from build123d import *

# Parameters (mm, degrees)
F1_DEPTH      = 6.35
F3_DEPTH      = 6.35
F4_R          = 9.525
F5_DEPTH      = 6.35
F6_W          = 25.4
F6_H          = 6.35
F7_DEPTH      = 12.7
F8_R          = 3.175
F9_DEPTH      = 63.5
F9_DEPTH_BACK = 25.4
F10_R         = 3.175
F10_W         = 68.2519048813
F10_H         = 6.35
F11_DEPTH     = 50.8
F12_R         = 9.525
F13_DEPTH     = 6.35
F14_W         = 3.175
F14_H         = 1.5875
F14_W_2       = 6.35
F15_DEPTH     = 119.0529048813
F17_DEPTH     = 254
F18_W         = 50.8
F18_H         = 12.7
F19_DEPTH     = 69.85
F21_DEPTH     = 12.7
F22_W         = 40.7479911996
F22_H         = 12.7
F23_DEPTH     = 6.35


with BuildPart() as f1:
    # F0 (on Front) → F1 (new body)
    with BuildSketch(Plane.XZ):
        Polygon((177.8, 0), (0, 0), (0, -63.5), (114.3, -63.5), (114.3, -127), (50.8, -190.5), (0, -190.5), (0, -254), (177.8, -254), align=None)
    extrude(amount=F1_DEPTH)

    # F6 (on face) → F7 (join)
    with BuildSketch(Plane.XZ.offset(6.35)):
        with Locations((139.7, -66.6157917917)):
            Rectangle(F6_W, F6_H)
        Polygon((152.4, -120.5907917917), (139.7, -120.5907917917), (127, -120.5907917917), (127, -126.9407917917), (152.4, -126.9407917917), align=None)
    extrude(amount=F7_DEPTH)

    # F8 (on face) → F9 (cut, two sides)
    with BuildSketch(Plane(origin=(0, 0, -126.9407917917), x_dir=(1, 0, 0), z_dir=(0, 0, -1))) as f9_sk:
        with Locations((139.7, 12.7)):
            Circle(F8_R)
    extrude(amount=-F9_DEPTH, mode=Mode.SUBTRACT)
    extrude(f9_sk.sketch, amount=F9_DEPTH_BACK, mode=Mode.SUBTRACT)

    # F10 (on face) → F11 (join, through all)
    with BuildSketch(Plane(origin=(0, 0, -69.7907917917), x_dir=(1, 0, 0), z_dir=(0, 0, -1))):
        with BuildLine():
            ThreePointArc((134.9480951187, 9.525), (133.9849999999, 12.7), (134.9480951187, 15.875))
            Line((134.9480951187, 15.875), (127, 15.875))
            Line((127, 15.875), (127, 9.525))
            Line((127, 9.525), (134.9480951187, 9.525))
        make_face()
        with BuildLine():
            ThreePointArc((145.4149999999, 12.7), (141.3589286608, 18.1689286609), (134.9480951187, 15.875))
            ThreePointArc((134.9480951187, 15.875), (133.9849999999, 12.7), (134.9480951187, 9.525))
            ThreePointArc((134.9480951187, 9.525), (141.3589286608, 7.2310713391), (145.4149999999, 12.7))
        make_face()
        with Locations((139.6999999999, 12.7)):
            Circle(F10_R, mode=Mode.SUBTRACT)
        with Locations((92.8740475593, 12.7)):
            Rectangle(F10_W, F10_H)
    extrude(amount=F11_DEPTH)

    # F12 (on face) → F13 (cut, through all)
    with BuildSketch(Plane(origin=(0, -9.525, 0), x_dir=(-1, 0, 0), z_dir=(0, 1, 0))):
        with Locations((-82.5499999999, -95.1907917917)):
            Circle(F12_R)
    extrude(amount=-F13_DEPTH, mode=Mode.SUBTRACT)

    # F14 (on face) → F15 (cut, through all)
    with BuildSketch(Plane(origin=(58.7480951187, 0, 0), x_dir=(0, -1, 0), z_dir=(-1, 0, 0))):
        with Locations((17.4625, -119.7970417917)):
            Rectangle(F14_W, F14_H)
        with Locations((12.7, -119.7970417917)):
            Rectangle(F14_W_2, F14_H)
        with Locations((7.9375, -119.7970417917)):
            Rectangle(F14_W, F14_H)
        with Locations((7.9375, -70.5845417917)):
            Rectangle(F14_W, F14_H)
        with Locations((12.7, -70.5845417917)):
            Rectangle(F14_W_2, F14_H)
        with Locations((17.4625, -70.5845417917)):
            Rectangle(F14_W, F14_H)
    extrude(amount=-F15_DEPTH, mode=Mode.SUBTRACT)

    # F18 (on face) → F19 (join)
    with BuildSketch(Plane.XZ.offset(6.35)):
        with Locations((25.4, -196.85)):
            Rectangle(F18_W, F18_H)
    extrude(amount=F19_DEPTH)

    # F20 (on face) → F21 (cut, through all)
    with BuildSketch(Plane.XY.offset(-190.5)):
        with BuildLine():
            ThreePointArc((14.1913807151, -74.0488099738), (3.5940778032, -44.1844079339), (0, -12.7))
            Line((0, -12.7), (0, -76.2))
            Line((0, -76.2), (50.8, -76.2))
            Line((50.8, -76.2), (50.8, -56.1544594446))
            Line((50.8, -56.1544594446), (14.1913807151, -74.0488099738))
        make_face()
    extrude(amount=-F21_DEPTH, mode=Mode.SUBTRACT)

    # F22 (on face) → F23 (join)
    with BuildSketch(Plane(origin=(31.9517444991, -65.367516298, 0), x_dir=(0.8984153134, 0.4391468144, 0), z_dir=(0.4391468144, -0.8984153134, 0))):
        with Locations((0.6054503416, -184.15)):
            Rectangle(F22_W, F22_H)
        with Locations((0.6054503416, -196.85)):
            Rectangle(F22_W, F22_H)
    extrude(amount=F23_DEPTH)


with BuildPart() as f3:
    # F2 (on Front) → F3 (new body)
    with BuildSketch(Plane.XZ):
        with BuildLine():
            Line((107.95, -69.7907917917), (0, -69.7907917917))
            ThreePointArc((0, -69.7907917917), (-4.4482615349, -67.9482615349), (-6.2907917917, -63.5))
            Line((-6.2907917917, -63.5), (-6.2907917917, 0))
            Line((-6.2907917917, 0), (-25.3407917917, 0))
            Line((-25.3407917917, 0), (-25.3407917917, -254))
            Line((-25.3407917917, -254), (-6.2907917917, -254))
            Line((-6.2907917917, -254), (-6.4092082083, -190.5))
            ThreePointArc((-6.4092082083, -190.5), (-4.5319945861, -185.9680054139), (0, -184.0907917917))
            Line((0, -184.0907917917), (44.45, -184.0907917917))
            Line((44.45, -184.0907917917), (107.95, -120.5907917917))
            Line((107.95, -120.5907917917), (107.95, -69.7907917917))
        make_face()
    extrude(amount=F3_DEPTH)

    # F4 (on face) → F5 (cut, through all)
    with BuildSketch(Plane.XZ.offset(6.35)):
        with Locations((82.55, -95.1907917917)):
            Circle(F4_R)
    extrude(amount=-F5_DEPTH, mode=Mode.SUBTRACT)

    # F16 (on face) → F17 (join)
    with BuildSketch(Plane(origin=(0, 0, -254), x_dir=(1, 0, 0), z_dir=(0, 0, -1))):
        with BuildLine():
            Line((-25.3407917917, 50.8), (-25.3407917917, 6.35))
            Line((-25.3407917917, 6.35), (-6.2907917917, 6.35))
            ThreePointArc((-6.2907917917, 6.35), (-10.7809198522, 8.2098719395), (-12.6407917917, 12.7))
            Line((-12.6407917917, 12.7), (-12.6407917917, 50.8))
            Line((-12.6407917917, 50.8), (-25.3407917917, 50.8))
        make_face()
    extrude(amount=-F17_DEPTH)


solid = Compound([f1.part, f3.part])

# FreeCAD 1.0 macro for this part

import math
import FreeCAD as App
import Part
import Sketcher
from FreeCAD import Vector
Q = App.Units.Quantity

doc = App.newDocument("Part")
body = doc.addObject("PartDesign::Body", "Body")
body.AllowCompound = True

sketch1 = doc.addObject("Sketcher::SketchObject", "Sketch")
body.addObject(sketch1)
sketch1.AttachmentSupport = (doc.XZ_Plane, [""])
sketch1.MapMode = "FlatFace"
sketch1.addGeometry(Part.LineSegment(Vector(177.8, 0, 0), Vector(0, 0, 0)), False)
sketch1.addGeometry(Part.LineSegment(Vector(0, 0, 0), Vector(0, -63.5, 0)), False)
sketch1.addGeometry(Part.LineSegment(Vector(0, -63.5, 0), Vector(114.3, -63.5, 0)), False)
sketch1.addGeometry(Part.LineSegment(Vector(114.3, -63.5, 0), Vector(114.3, -127, 0)), False)
sketch1.addGeometry(Part.LineSegment(Vector(114.3, -127, 0), Vector(50.8, -190.5, 0)), False)
sketch1.addGeometry(Part.LineSegment(Vector(50.8, -190.5, 0), Vector(0, -190.5, 0)), False)
sketch1.addGeometry(Part.LineSegment(Vector(0, -190.5, 0), Vector(0, -254, 0)), False)
sketch1.addGeometry(Part.LineSegment(Vector(0, -254, 0), Vector(177.8, -254, 0)), False)
sketch1.addGeometry(Part.LineSegment(Vector(177.8, -254, 0), Vector(177.8, 0, 0)), False)
sketch1.addConstraint(Sketcher.Constraint("Coincident", 0, 2, 1, 1))
sketch1.addConstraint(Sketcher.Constraint("Coincident", 1, 2, 2, 1))
sketch1.addConstraint(Sketcher.Constraint("Coincident", 2, 2, 3, 1))
sketch1.addConstraint(Sketcher.Constraint("Coincident", 3, 2, 4, 1))
sketch1.addConstraint(Sketcher.Constraint("Coincident", 4, 2, 5, 1))
sketch1.addConstraint(Sketcher.Constraint("Coincident", 5, 2, 6, 1))
sketch1.addConstraint(Sketcher.Constraint("Coincident", 6, 2, 7, 1))
sketch1.addConstraint(Sketcher.Constraint("Coincident", 7, 2, 8, 1))
sketch1.addConstraint(Sketcher.Constraint("Coincident", 8, 2, 0, 1))
sketch1.addConstraint(Sketcher.Constraint("Horizontal", 0))
sketch1.addConstraint(Sketcher.Constraint("Vertical", 1))
sketch1.addConstraint(Sketcher.Constraint("Horizontal", 2))
sketch1.addConstraint(Sketcher.Constraint("Vertical", 3))
sketch1.addConstraint(Sketcher.Constraint("Horizontal", 5))
sketch1.addConstraint(Sketcher.Constraint("Vertical", 6))
sketch1.addConstraint(Sketcher.Constraint("Horizontal", 7))
sketch1.addConstraint(Sketcher.Constraint("Vertical", 8))
sketch1.addConstraint(Sketcher.Constraint("Coincident", 0, 2, -1, 1))
sketch1.addConstraint(Sketcher.Constraint("PointOnObject", 5, 2, -2))
sketch1.addConstraint(Sketcher.Constraint("Equal", 1, 3))
sketch1.addConstraint(Sketcher.Constraint("Equal", 3, 6))
sketch1.addConstraint(Sketcher.Constraint("DistanceX", 0, 2, 0, 1, Q("7 in")))
sketch1.addConstraint(Sketcher.Constraint("DistanceX", 5, 2, 5, 1, Q("2 in")))
sketch1.addConstraint(Sketcher.Constraint("DistanceY", 8, 1, 8, 2, Q("10 in")))
sketch1.addConstraint(Sketcher.Constraint("DistanceX", 2, 1, 2, 2, Q("4.5 in")))
sketch1.addConstraint(Sketcher.Constraint("DistanceY", 1, 2, 1, 1, Q("2.5 in")))
pad1 = doc.addObject("PartDesign::Pad", "Pad")
body.addObject(pad1)
pad1.Profile = sketch1
pad1.Length = Q("0.25 in")

sketch2 = doc.addObject("Sketcher::SketchObject", "Sketch001")
body.addObject(sketch2)
sketch2.AttachmentSupport = (doc.XZ_Plane, [""])
sketch2.MapMode = "FlatFace"
sketch2.AttachmentOffset = App.Placement(Vector(0, 0, 0.25 * 25.4), App.Rotation())
sketch2.addGeometry(Part.LineSegment(Vector(127, -63.440792, 0), Vector(127, -69.790792, 0)), False)
sketch2.addGeometry(Part.LineSegment(Vector(127, -69.790792, 0), Vector(152.4, -69.790792, 0)), False)
sketch2.addGeometry(Part.LineSegment(Vector(152.4, -69.790792, 0), Vector(152.4, -63.440792, 0)), False)
sketch2.addGeometry(Part.LineSegment(Vector(152.4, -63.440792, 0), Vector(127, -63.440792, 0)), False)
sketch2.addGeometry(Part.LineSegment(Vector(152.4, -120.590792, 0), Vector(127, -120.590792, 0)), False)
sketch2.addGeometry(Part.LineSegment(Vector(127, -120.590792, 0), Vector(127, -126.940792, 0)), False)
sketch2.addGeometry(Part.LineSegment(Vector(127, -126.940792, 0), Vector(152.4, -126.940792, 0)), False)
sketch2.addGeometry(Part.LineSegment(Vector(152.4, -126.940792, 0), Vector(152.4, -120.590792, 0)), False)
sketch2.addConstraint(Sketcher.Constraint("Coincident", 0, 2, 1, 1))
sketch2.addConstraint(Sketcher.Constraint("Coincident", 1, 2, 2, 1))
sketch2.addConstraint(Sketcher.Constraint("Coincident", 2, 2, 3, 1))
sketch2.addConstraint(Sketcher.Constraint("Coincident", 3, 2, 0, 1))
sketch2.addConstraint(Sketcher.Constraint("Coincident", 4, 2, 5, 1))
sketch2.addConstraint(Sketcher.Constraint("Coincident", 5, 2, 6, 1))
sketch2.addConstraint(Sketcher.Constraint("Coincident", 6, 2, 7, 1))
sketch2.addConstraint(Sketcher.Constraint("Coincident", 7, 2, 4, 1))
sketch2.addConstraint(Sketcher.Constraint("Vertical", 0))
sketch2.addConstraint(Sketcher.Constraint("Horizontal", 1))
sketch2.addConstraint(Sketcher.Constraint("Vertical", 2))
sketch2.addConstraint(Sketcher.Constraint("Horizontal", 3))
sketch2.addConstraint(Sketcher.Constraint("Horizontal", 4))
sketch2.addConstraint(Sketcher.Constraint("Vertical", 5))
sketch2.addConstraint(Sketcher.Constraint("Horizontal", 6))
sketch2.addConstraint(Sketcher.Constraint("Vertical", 7))
sketch2.addConstraint(Sketcher.Constraint("Vertical", 3, 2, 4, 2))
sketch2.addConstraint(Sketcher.Constraint("Vertical", 2, 2, 6, 2))
sketch2.addConstraint(Sketcher.Constraint("Equal", 2, 5))
sketch2.addConstraint(Sketcher.Constraint("DistanceX", 1, 1, 1, 2, Q("1 in")))
sketch2.addConstraint(Sketcher.Constraint("DistanceX", -1, 1, 0, 2, Q("5 in")))
sketch2.addConstraint(Sketcher.Constraint("DistanceY", 4, 2, 0, 2, Q("2 in")))
sketch2.addConstraint(Sketcher.Constraint("DistanceY", 0, 2, 0, 1, Q("0.25 in")))
sketch2.addConstraint(Sketcher.Constraint("DistanceY", 0, 2, -1, 1, Q("69.790792 mm")))
pad2 = doc.addObject("PartDesign::Pad", "Pad001")
body.addObject(pad2)
pad2.Profile = sketch2
pad2.Length = Q("0.5 in")

sketch3 = doc.addObject("Sketcher::SketchObject", "Sketch002")
body.addObject(sketch3)
sketch3.AttachmentSupport = (doc.XY_Plane, [""])
sketch3.MapMode = "FlatFace"
sketch3.AttachmentOffset = App.Placement(Vector(0, 0, -126.940792), App.Rotation())
sketch3.addGeometry(Part.Circle(Vector(139.7, -12.7, 0), Vector(0, 0, 1), 3.175), False)
sketch3.addConstraint(Sketcher.Constraint("Diameter", 0, Q("0.25 in")))
sketch3.addConstraint(Sketcher.Constraint("DistanceX", -1, 1, 0, 3, Q("5.5 in")))
sketch3.addConstraint(Sketcher.Constraint("DistanceY", 0, 3, -1, 1, Q("0.5 in")))
pocket1 = doc.addObject("PartDesign::Pocket", "Pocket")
body.addObject(pocket1)
pocket1.Profile = sketch3
pocket1.Type = "ThroughAll"
pocket1.Midplane = True

sketch4 = doc.addObject("Sketcher::SketchObject", "Sketch003")
body.addObject(sketch4)
sketch4.AttachmentSupport = (doc.XY_Plane, [""])
sketch4.MapMode = "FlatFace"
sketch4.AttachmentOffset = App.Placement(Vector(0, 0, -69.790792), App.Rotation())
sketch4.addGeometry(Part.LineSegment(Vector(134.948095, -15.875, 0), Vector(58.748095, -15.875, 0)), False)
sketch4.addGeometry(Part.LineSegment(Vector(58.748095, -15.875, 0), Vector(58.748095, -9.525, 0)), False)
sketch4.addGeometry(Part.LineSegment(Vector(58.748095, -9.525, 0), Vector(134.948095, -9.525, 0)), False)
sketch4.addGeometry(Part.ArcOfCircle(Part.Circle(Vector(139.7, -12.7, 0), Vector(0, 0, 1), 5.715), math.radians(-146.251011), math.radians(146.251011)), False)
sketch4.addGeometry(Part.Circle(Vector(139.7, -12.7, 0), Vector(0, 0, 1), 3.175), False)
sketch4.addConstraint(Sketcher.Constraint("Coincident", 0, 2, 1, 1))
sketch4.addConstraint(Sketcher.Constraint("Coincident", 1, 2, 2, 1))
sketch4.addConstraint(Sketcher.Constraint("Coincident", 2, 2, 3, 2))
sketch4.addConstraint(Sketcher.Constraint("Coincident", 3, 1, 0, 1))
sketch4.addConstraint(Sketcher.Constraint("Horizontal", 0))
sketch4.addConstraint(Sketcher.Constraint("Vertical", 1))
sketch4.addConstraint(Sketcher.Constraint("Horizontal", 2))
sketch4.addConstraint(Sketcher.Constraint("Coincident", 4, 3, 3, 3))
sketch4.addConstraint(Sketcher.Constraint("Vertical", 2, 2, 3, 1))
sketch4.addConstraint(Sketcher.Constraint("Diameter", 4, Q("0.25 in")))
sketch4.addConstraint(Sketcher.Constraint("DistanceX", 0, 2, 0, 1, Q("3 in")))
sketch4.addConstraint(Sketcher.Constraint("Radius", 3, Q("0.225 in")))
sketch4.addConstraint(Sketcher.Constraint("DistanceY", 1, 1, 1, 2, Q("0.25 in")))
sketch4.addConstraint(Sketcher.Constraint("DistanceX", -1, 1, 3, 3, Q("5.5 in")))
sketch4.addConstraint(Sketcher.Constraint("DistanceY", 3, 3, -1, 1, Q("0.5 in")))
pad3 = doc.addObject("PartDesign::Pad", "Pad002")
body.addObject(pad3)
pad3.Profile = sketch4
pad3.Length = Q("2 in")
pad3.Reversed = True

sketch5 = doc.addObject("Sketcher::SketchObject", "Sketch004")
body.addObject(sketch5)
sketch5.AttachmentSupport = (doc.XZ_Plane, [""])
sketch5.MapMode = "FlatFace"
sketch5.AttachmentOffset = App.Placement(Vector(0, 0, 0.375 * 25.4), App.Rotation())
sketch5.addGeometry(Part.Circle(Vector(82.55, -95.190792, 0), Vector(0, 0, 1), 9.525), False)
sketch5.addConstraint(Sketcher.Constraint("Diameter", 0, Q("0.75 in")))
sketch5.addConstraint(Sketcher.Constraint("DistanceX", -1, 1, 0, 3, Q("3.25 in")))
sketch5.addConstraint(Sketcher.Constraint("DistanceY", 0, 3, -1, 1, Q("95.190792 mm")))
pocket2 = doc.addObject("PartDesign::Pocket", "Pocket001")
body.addObject(pocket2)
pocket2.Profile = sketch5
pocket2.Type = "ThroughAll"
pocket2.Reversed = True

sketch6 = doc.addObject("Sketcher::SketchObject", "Sketch005")
body.addObject(sketch6)
sketch6.AttachmentSupport = (doc.YZ_Plane, [""])
sketch6.MapMode = "FlatFace"
sketch6.AttachmentOffset = App.Placement(Vector(0, 0, 58.748095), App.Rotation())
sketch6.addGeometry(Part.LineSegment(Vector(-19.05, -120.590792, 0), Vector(-19.05, -119.003292, 0)), False)
sketch6.addGeometry(Part.LineSegment(Vector(-19.05, -119.003292, 0), Vector(-6.35, -119.003292, 0)), False)
sketch6.addGeometry(Part.LineSegment(Vector(-6.35, -119.003292, 0), Vector(-6.35, -120.590792, 0)), False)
sketch6.addGeometry(Part.LineSegment(Vector(-6.35, -120.590792, 0), Vector(-19.05, -120.590792, 0)), False)
sketch6.addGeometry(Part.LineSegment(Vector(-6.35, -69.790792, 0), Vector(-6.35, -71.378292, 0)), False)
sketch6.addGeometry(Part.LineSegment(Vector(-6.35, -71.378292, 0), Vector(-19.05, -71.378292, 0)), False)
sketch6.addGeometry(Part.LineSegment(Vector(-19.05, -71.378292, 0), Vector(-19.05, -69.790792, 0)), False)
sketch6.addGeometry(Part.LineSegment(Vector(-19.05, -69.790792, 0), Vector(-6.35, -69.790792, 0)), False)
sketch6.addConstraint(Sketcher.Constraint("Coincident", 0, 2, 1, 1))
sketch6.addConstraint(Sketcher.Constraint("Coincident", 1, 2, 2, 1))
sketch6.addConstraint(Sketcher.Constraint("Coincident", 2, 2, 3, 1))
sketch6.addConstraint(Sketcher.Constraint("Coincident", 3, 2, 0, 1))
sketch6.addConstraint(Sketcher.Constraint("Coincident", 4, 2, 5, 1))
sketch6.addConstraint(Sketcher.Constraint("Coincident", 5, 2, 6, 1))
sketch6.addConstraint(Sketcher.Constraint("Coincident", 6, 2, 7, 1))
sketch6.addConstraint(Sketcher.Constraint("Coincident", 7, 2, 4, 1))
sketch6.addConstraint(Sketcher.Constraint("Vertical", 0))
sketch6.addConstraint(Sketcher.Constraint("Horizontal", 1))
sketch6.addConstraint(Sketcher.Constraint("Vertical", 2))
sketch6.addConstraint(Sketcher.Constraint("Horizontal", 3))
sketch6.addConstraint(Sketcher.Constraint("Vertical", 4))
sketch6.addConstraint(Sketcher.Constraint("Horizontal", 5))
sketch6.addConstraint(Sketcher.Constraint("Vertical", 6))
sketch6.addConstraint(Sketcher.Constraint("Horizontal", 7))
sketch6.addConstraint(Sketcher.Constraint("Vertical", 2, 2, 4, 2))
sketch6.addConstraint(Sketcher.Constraint("Vertical", 3, 2, 5, 2))
sketch6.addConstraint(Sketcher.Constraint("Equal", 2, 4))
sketch6.addConstraint(Sketcher.Constraint("DistanceX", 1, 1, 1, 2, Q("0.5 in")))
sketch6.addConstraint(Sketcher.Constraint("DistanceY", 3, 2, 6, 2, Q("2 in")))
sketch6.addConstraint(Sketcher.Constraint("DistanceY", 0, 1, 0, 2, Q("0.0625 in")))
sketch6.addConstraint(Sketcher.Constraint("DistanceX", 0, 2, -1, 1, Q("0.75 in")))
sketch6.addConstraint(Sketcher.Constraint("DistanceY", 0, 2, -1, 1, Q("119.003292 mm")))
pocket3 = doc.addObject("PartDesign::Pocket", "Pocket002")
body.addObject(pocket3)
pocket3.Profile = sketch6
pocket3.Type = "ThroughAll"
pocket3.Reversed = True

sketch7 = doc.addObject("Sketcher::SketchObject", "Sketch006")
body.addObject(sketch7)
sketch7.AttachmentSupport = (doc.XZ_Plane, [""])
sketch7.MapMode = "FlatFace"
sketch7.AttachmentOffset = App.Placement(Vector(0, 0, 0.25 * 25.4), App.Rotation())
sketch7.addGeometry(Part.LineSegment(Vector(0, -190.5, 0), Vector(0, -203.2, 0)), False)
sketch7.addGeometry(Part.LineSegment(Vector(0, -203.2, 0), Vector(50.8, -203.2, 0)), False)
sketch7.addGeometry(Part.LineSegment(Vector(50.8, -203.2, 0), Vector(50.8, -190.5, 0)), False)
sketch7.addGeometry(Part.LineSegment(Vector(50.8, -190.5, 0), Vector(0, -190.5, 0)), False)
sketch7.addConstraint(Sketcher.Constraint("Coincident", 0, 2, 1, 1))
sketch7.addConstraint(Sketcher.Constraint("Coincident", 1, 2, 2, 1))
sketch7.addConstraint(Sketcher.Constraint("Coincident", 2, 2, 3, 1))
sketch7.addConstraint(Sketcher.Constraint("Coincident", 3, 2, 0, 1))
sketch7.addConstraint(Sketcher.Constraint("Vertical", 0))
sketch7.addConstraint(Sketcher.Constraint("Horizontal", 1))
sketch7.addConstraint(Sketcher.Constraint("Vertical", 2))
sketch7.addConstraint(Sketcher.Constraint("Horizontal", 3))
sketch7.addConstraint(Sketcher.Constraint("PointOnObject", 0, 2, -2))
sketch7.addConstraint(Sketcher.Constraint("DistanceX", 1, 1, 1, 2, Q("2 in")))
sketch7.addConstraint(Sketcher.Constraint("DistanceY", 0, 2, 0, 1, Q("0.5 in")))
sketch7.addConstraint(Sketcher.Constraint("DistanceY", 0, 2, -1, 1, Q("8 in")))
pad4 = doc.addObject("PartDesign::Pad", "Pad003")
body.addObject(pad4)
pad4.Profile = sketch7
pad4.Length = Q("2.75 in")

sketch8 = doc.addObject("Sketcher::SketchObject", "Sketch007")
body.addObject(sketch8)
sketch8.AttachmentSupport = (doc.XY_Plane, [""])
sketch8.MapMode = "FlatFace"
sketch8.AttachmentOffset = App.Placement(Vector(0, 0, -7.5 * 25.4), App.Rotation())
sketch8.addGeometry(Part.ArcOfCircle(Part.Circle(Vector(139.7, -12.7, 0), Vector(0, 0, 1), 139.7), math.radians(180), math.radians(206.049457)), False)
sketch8.addGeometry(Part.LineSegment(Vector(0, -12.7, 0), Vector(0, -76.2, 0)), False)
sketch8.addGeometry(Part.LineSegment(Vector(0, -76.2, 0), Vector(50.8, -76.2, 0)), False)
sketch8.addGeometry(Part.LineSegment(Vector(50.8, -76.2, 0), Vector(50.8, -56.154459, 0)), False)
sketch8.addGeometry(Part.LineSegment(Vector(50.8, -56.154459, 0), Vector(14.191381, -74.04881, 0)), False)
sketch8.addConstraint(Sketcher.Constraint("Tangent", 0, 1, 1, 1))
sketch8.addConstraint(Sketcher.Constraint("Coincident", 1, 2, 2, 1))
sketch8.addConstraint(Sketcher.Constraint("Coincident", 2, 2, 3, 1))
sketch8.addConstraint(Sketcher.Constraint("Coincident", 3, 2, 4, 1))
sketch8.addConstraint(Sketcher.Constraint("Coincident", 4, 2, 0, 2))
sketch8.addConstraint(Sketcher.Constraint("Vertical", 1))
sketch8.addConstraint(Sketcher.Constraint("Horizontal", 2))
sketch8.addConstraint(Sketcher.Constraint("Vertical", 3))
sketch8.addConstraint(Sketcher.Constraint("PointOnObject", 0, 1, -2))
sketch8.addConstraint(Sketcher.Constraint("Radius", 0, Q("5.5 in")))
sketch8.addConstraint(Sketcher.Constraint("DistanceX", 2, 1, 2, 2, Q("2 in")))
sketch8.addConstraint(Sketcher.Constraint("DistanceY", 1, 2, 1, 1, Q("2.5 in")))
sketch8.addConstraint(Sketcher.Constraint("DistanceY", 1, 2, -1, 1, Q("3 in")))
sketch8.addConstraint(Sketcher.Constraint("DistanceY", 3, 1, 3, 2, Q("20.045541 mm")))
sketch8.addConstraint(Sketcher.Constraint("DistanceX", -1, 1, 4, 2, Q("14.191381 mm")))
pocket4 = doc.addObject("PartDesign::Pocket", "Pocket003")
body.addObject(pocket4)
pocket4.Profile = sketch8
pocket4.Type = "ThroughAll"

sketch9 = doc.addObject("Sketcher::SketchObject", "Sketch008")
body.addObject(sketch9)
sketch9.Placement = App.Placement(Vector(31.951744, -65.367516, 0), App.Rotation(Vector(0.898415313, 0.439146814, 0), Vector(0, 0, 0.999999999), Vector(0.439146814, -0.898415313, 0), "ZXY"))
sketch9.addGeometry(Part.LineSegment(Vector(-19.768545, -177.8, 0), Vector(-19.768545, -203.2, 0)), False)
sketch9.addGeometry(Part.LineSegment(Vector(-19.768545, -203.2, 0), Vector(20.979446, -203.2, 0)), False)
sketch9.addGeometry(Part.LineSegment(Vector(20.979446, -203.2, 0), Vector(20.979446, -177.8, 0)), False)
sketch9.addGeometry(Part.LineSegment(Vector(20.979446, -177.8, 0), Vector(-19.768545, -177.8, 0)), False)
sketch9.addConstraint(Sketcher.Constraint("Coincident", 0, 2, 1, 1))
sketch9.addConstraint(Sketcher.Constraint("Coincident", 1, 2, 2, 1))
sketch9.addConstraint(Sketcher.Constraint("Coincident", 2, 2, 3, 1))
sketch9.addConstraint(Sketcher.Constraint("Coincident", 3, 2, 0, 1))
sketch9.addConstraint(Sketcher.Constraint("Vertical", 0))
sketch9.addConstraint(Sketcher.Constraint("Horizontal", 1))
sketch9.addConstraint(Sketcher.Constraint("Vertical", 2))
sketch9.addConstraint(Sketcher.Constraint("Horizontal", 3))
sketch9.addConstraint(Sketcher.Constraint("DistanceY", 0, 2, 0, 1, Q("1 in")))
sketch9.addConstraint(Sketcher.Constraint("DistanceY", 0, 2, -1, 1, Q("8 in")))
sketch9.addConstraint(Sketcher.Constraint("DistanceX", 1, 1, 1, 2, Q("40.747991 mm")))
sketch9.addConstraint(Sketcher.Constraint("DistanceX", 0, 2, -1, 1, Q("19.768545 mm")))
pad5 = doc.addObject("PartDesign::Pad", "Pad004")
body.addObject(pad5)
pad5.Profile = sketch9
pad5.Length = Q("0.25 in")
body2 = doc.addObject("PartDesign::Body", "Body001")

sketch10 = doc.addObject("Sketcher::SketchObject", "Sketch009")
body2.addObject(sketch10)
sketch10.AttachmentSupport = (doc.getObject("XZ_Plane001"), [""])
sketch10.MapMode = "FlatFace"
sketch10.addGeometry(Part.LineSegment(Vector(107.95, -69.790792, 0), Vector(0, -69.790792, 0)), False)
sketch10.addGeometry(Part.ArcOfCircle(Part.Circle(Vector(0, -63.5, 0), Vector(0, 0, 1), 6.290792), math.radians(180), math.radians(270)), False)
sketch10.addGeometry(Part.LineSegment(Vector(-6.290792, -63.5, 0), Vector(-6.290792, 0, 0)), False)
sketch10.addGeometry(Part.LineSegment(Vector(-6.290792, 0, 0), Vector(-25.340792, 0, 0)), False)
sketch10.addGeometry(Part.LineSegment(Vector(-25.340792, 0, 0), Vector(-25.340792, -254, 0)), False)
sketch10.addGeometry(Part.LineSegment(Vector(-25.340792, -254, 0), Vector(-6.290792, -254, 0)), False)
sketch10.addGeometry(Part.LineSegment(Vector(-6.290792, -254, 0), Vector(-6.409208, -190.5, 0)), False)
sketch10.addGeometry(Part.ArcOfCircle(Part.Circle(Vector(0, -190.5, 0), Vector(0, 0, 1), 6.409208), math.radians(90), math.radians(180)), False)
sketch10.addGeometry(Part.LineSegment(Vector(0, -184.090792, 0), Vector(44.45, -184.090792, 0)), False)
sketch10.addGeometry(Part.LineSegment(Vector(44.45, -184.090792, 0), Vector(107.95, -120.590792, 0)), False)
sketch10.addGeometry(Part.LineSegment(Vector(107.95, -120.590792, 0), Vector(107.95, -69.790792, 0)), False)
sketch10.addConstraint(Sketcher.Constraint("Tangent", 0, 2, 1, 2))
sketch10.addConstraint(Sketcher.Constraint("Tangent", 1, 1, 2, 1))
sketch10.addConstraint(Sketcher.Constraint("Coincident", 2, 2, 3, 1))
sketch10.addConstraint(Sketcher.Constraint("Coincident", 3, 2, 4, 1))
sketch10.addConstraint(Sketcher.Constraint("Coincident", 4, 2, 5, 1))
sketch10.addConstraint(Sketcher.Constraint("Coincident", 5, 2, 6, 1))
sketch10.addConstraint(Sketcher.Constraint("Coincident", 6, 2, 7, 2))
sketch10.addConstraint(Sketcher.Constraint("Tangent", 7, 1, 8, 1))
sketch10.addConstraint(Sketcher.Constraint("Coincident", 8, 2, 9, 1))
sketch10.addConstraint(Sketcher.Constraint("Coincident", 9, 2, 10, 1))
sketch10.addConstraint(Sketcher.Constraint("Coincident", 10, 2, 0, 1))
sketch10.addConstraint(Sketcher.Constraint("Horizontal", 0))
sketch10.addConstraint(Sketcher.Constraint("Vertical", 2))
sketch10.addConstraint(Sketcher.Constraint("Horizontal", 3))
sketch10.addConstraint(Sketcher.Constraint("Vertical", 4))
sketch10.addConstraint(Sketcher.Constraint("Horizontal", 5))
sketch10.addConstraint(Sketcher.Constraint("Horizontal", 8))
sketch10.addConstraint(Sketcher.Constraint("Vertical", 10))
sketch10.addConstraint(Sketcher.Constraint("PointOnObject", 1, 3, -2))
sketch10.addConstraint(Sketcher.Constraint("PointOnObject", 7, 3, -2))
sketch10.addConstraint(Sketcher.Constraint("PointOnObject", 2, 2, -1))
sketch10.addConstraint(Sketcher.Constraint("Horizontal", 7, 3, 6, 2))
sketch10.addConstraint(Sketcher.Constraint("Vertical", 2, 2, 5, 2))
sketch10.addConstraint(Sketcher.Constraint("DistanceY", 4, 2, 4, 1, Q("10 in")))
sketch10.addConstraint(Sketcher.Constraint("DistanceY", 10, 1, 10, 2, Q("2 in")))
sketch10.addConstraint(Sketcher.Constraint("DistanceY", 2, 1, 2, 2, Q("2.5 in")))
sketch10.addConstraint(Sketcher.Constraint("Angle", 9, Q("45 deg")))
sketch10.addConstraint(Sketcher.Constraint("DistanceY", 7, 3, 1, 3, Q("5 in")))
sketch10.addConstraint(Sketcher.Constraint("DistanceX", 0, 2, 0, 1, Q("4.25 in")))
sketch10.addConstraint(Sketcher.Constraint("DistanceX", 3, 2, 3, 1, Q("0.75 in")))
sketch10.addConstraint(Sketcher.Constraint("DistanceX", 8, 1, 8, 2, Q("1.75 in")))
sketch10.addConstraint(Sketcher.Constraint("Radius", 1, Q("6.290792 mm")))
pad6 = doc.addObject("PartDesign::Pad", "Pad005")
body2.addObject(pad6)
pad6.Profile = sketch10
pad6.Length = Q("0.25 in")

sketch11 = doc.addObject("Sketcher::SketchObject", "Sketch010")
body2.addObject(sketch11)
sketch11.AttachmentSupport = (doc.getObject("XZ_Plane001"), [""])
sketch11.MapMode = "FlatFace"
sketch11.AttachmentOffset = App.Placement(Vector(0, 0, 0.25 * 25.4), App.Rotation())
sketch11.addGeometry(Part.Circle(Vector(82.55, -95.190792, 0), Vector(0, 0, 1), 9.525), False)
sketch11.addConstraint(Sketcher.Constraint("Diameter", 0, Q("0.75 in")))
sketch11.addConstraint(Sketcher.Constraint("DistanceX", -1, 1, 0, 3, Q("3.25 in")))
sketch11.addConstraint(Sketcher.Constraint("DistanceY", 0, 3, -1, 1, Q("95.190792 mm")))
pocket5 = doc.addObject("PartDesign::Pocket", "Pocket004")
body2.addObject(pocket5)
pocket5.Profile = sketch11
pocket5.Type = "ThroughAll"

sketch12 = doc.addObject("Sketcher::SketchObject", "Sketch011")
body2.addObject(sketch12)
sketch12.AttachmentSupport = (doc.getObject("XY_Plane001"), [""])
sketch12.MapMode = "FlatFace"
sketch12.AttachmentOffset = App.Placement(Vector(0, 0, -10 * 25.4), App.Rotation())
sketch12.addGeometry(Part.LineSegment(Vector(-25.340792, -50.8, 0), Vector(-25.340792, -6.35, 0)), False)
sketch12.addGeometry(Part.LineSegment(Vector(-25.340792, -6.35, 0), Vector(-6.290792, -6.35, 0)), False)
sketch12.addGeometry(Part.ArcOfCircle(Part.Circle(Vector(-6.290792, -12.7, 0), Vector(0, 0, 1), 6.35), math.radians(90), math.radians(180)), False)
sketch12.addGeometry(Part.LineSegment(Vector(-12.640792, -12.7, 0), Vector(-12.640792, -50.8, 0)), False)
sketch12.addGeometry(Part.LineSegment(Vector(-12.640792, -50.8, 0), Vector(-25.340792, -50.8, 0)), False)
sketch12.addConstraint(Sketcher.Constraint("Coincident", 0, 2, 1, 1))
sketch12.addConstraint(Sketcher.Constraint("Tangent", 1, 2, 2, 1))
sketch12.addConstraint(Sketcher.Constraint("Tangent", 2, 2, 3, 1))
sketch12.addConstraint(Sketcher.Constraint("Coincident", 3, 2, 4, 1))
sketch12.addConstraint(Sketcher.Constraint("Coincident", 4, 2, 0, 1))
sketch12.addConstraint(Sketcher.Constraint("Vertical", 0))
sketch12.addConstraint(Sketcher.Constraint("Horizontal", 1))
sketch12.addConstraint(Sketcher.Constraint("Vertical", 3))
sketch12.addConstraint(Sketcher.Constraint("Horizontal", 4))
sketch12.addConstraint(Sketcher.Constraint("Radius", 2, Q("0.25 in")))
sketch12.addConstraint(Sketcher.Constraint("DistanceX", 4, 2, 4, 1, Q("0.5 in")))
sketch12.addConstraint(Sketcher.Constraint("DistanceY", 3, 2, 3, 1, Q("1.5 in")))
sketch12.addConstraint(Sketcher.Constraint("DistanceY", 3, 2, -1, 1, Q("2 in")))
sketch12.addConstraint(Sketcher.Constraint("DistanceX", 2, 3, -1, 1, Q("6.290792 mm")))
pad7 = doc.addObject("PartDesign::Pad", "Pad006")
body2.addObject(pad7)
pad7.Profile = sketch12
pad7.Length = Q("10 in")

doc.recompute()
